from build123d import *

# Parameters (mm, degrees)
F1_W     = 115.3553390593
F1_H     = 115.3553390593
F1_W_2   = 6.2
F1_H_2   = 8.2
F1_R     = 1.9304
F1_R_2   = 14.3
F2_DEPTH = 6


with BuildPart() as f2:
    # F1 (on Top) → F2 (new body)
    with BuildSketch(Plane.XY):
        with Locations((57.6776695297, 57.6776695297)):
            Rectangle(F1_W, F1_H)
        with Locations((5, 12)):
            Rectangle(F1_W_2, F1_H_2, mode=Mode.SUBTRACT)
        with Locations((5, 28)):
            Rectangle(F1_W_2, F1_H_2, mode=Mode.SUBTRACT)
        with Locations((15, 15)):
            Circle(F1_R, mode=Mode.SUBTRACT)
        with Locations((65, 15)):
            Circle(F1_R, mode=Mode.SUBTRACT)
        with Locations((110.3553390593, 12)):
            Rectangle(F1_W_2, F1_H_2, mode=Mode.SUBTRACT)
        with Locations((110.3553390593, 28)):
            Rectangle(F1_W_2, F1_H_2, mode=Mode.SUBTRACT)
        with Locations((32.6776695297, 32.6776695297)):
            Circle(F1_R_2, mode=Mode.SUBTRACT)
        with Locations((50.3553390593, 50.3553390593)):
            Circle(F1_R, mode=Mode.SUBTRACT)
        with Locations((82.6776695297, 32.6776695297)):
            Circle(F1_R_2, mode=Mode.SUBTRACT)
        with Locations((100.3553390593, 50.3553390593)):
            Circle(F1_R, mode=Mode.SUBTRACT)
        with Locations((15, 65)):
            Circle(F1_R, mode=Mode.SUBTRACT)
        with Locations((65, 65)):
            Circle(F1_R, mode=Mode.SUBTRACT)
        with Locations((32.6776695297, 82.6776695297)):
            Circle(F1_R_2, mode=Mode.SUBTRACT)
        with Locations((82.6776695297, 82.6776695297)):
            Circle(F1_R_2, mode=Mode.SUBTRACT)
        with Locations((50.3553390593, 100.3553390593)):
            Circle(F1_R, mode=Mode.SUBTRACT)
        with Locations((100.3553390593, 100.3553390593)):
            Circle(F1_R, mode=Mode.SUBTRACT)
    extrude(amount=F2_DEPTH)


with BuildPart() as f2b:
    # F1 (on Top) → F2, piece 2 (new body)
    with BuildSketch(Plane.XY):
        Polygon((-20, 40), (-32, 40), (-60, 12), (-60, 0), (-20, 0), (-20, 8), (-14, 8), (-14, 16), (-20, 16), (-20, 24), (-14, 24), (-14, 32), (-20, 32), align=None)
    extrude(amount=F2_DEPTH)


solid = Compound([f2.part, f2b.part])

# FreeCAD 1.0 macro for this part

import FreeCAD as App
import Part
import Sketcher
from FreeCAD import Vector

doc = App.newDocument("Part")
body = doc.addObject("PartDesign::Body", "Body")

# Sketch on XY plane
sketch1 = body.newObject("Sketcher::SketchObject", "Sketch")
sketch1.AttachmentSupport = (doc.getObject("XY_Plane"), [""])
sketch1.MapMode = "FlatFace"
sketch1.addGeometry([
    Part.LineSegment(Vector(0, 115.4, 0), Vector(0, 0, 0)),  # 0
    Part.LineSegment(Vector(0, 0, 0), Vector(115.4, 0, 0)),  # 1
    Part.LineSegment(Vector(115.4, 0, 0), Vector(115.4, 115.4, 0)),  # 2
    Part.LineSegment(Vector(115.4, 115.4, 0), Vector(0, 115.4, 0)),  # 3
    Part.LineSegment(Vector(8.1, 7.9, 0), Vector(1.9, 7.9, 0)),  # 4
    Part.LineSegment(Vector(1.9, 7.9, 0), Vector(1.9, 16.1, 0)),  # 5
    Part.LineSegment(Vector(1.9, 16.1, 0), Vector(8.1, 16.1, 0)),  # 6
    Part.LineSegment(Vector(8.1, 16.1, 0), Vector(8.1, 7.9, 0)),  # 7
    Part.Circle(Vector(15, 15, 0), Vector(0, 0, 1), 1.9),  # 8
    Part.LineSegment(Vector(8.1, 23.9, 0), Vector(1.9, 23.9, 0)),  # 9
    Part.LineSegment(Vector(1.9, 23.9, 0), Vector(1.9, 32.1, 0)),  # 10
    Part.LineSegment(Vector(1.9, 32.1, 0), Vector(8.1, 32.1, 0)),  # 11
    Part.LineSegment(Vector(8.1, 32.1, 0), Vector(8.1, 23.9, 0)),  # 12
    Part.Circle(Vector(32.7, 32.7, 0), Vector(0, 0, 1), 14.3),  # 13
    Part.Circle(Vector(50.4, 50.4, 0), Vector(0, 0, 1), 1.9),  # 14
    Part.Circle(Vector(65, 15, 0), Vector(0, 0, 1), 1.9),  # 15
    Part.LineSegment(Vector(113.5, 7.9, 0), Vector(107.3, 7.9, 0)),  # 16
    Part.LineSegment(Vector(107.3, 7.9, 0), Vector(107.3, 16.1, 0)),  # 17
    Part.LineSegment(Vector(107.3, 16.1, 0), Vector(113.5, 16.1, 0)),  # 18
    Part.LineSegment(Vector(113.5, 16.1, 0), Vector(113.5, 7.9, 0)),  # 19
    Part.LineSegment(Vector(113.5, 23.9, 0), Vector(107.3, 23.9, 0)),  # 20
    Part.LineSegment(Vector(107.3, 23.9, 0), Vector(107.3, 32.1, 0)),  # 21
    Part.LineSegment(Vector(107.3, 32.1, 0), Vector(113.5, 32.1, 0)),  # 22
    Part.LineSegment(Vector(113.5, 32.1, 0), Vector(113.5, 23.9, 0)),  # 23
    Part.Circle(Vector(82.7, 32.7, 0), Vector(0, 0, 1), 14.3),  # 24
    Part.Circle(Vector(100.4, 50.4, 0), Vector(0, 0, 1), 1.9),  # 25
    Part.Circle(Vector(15, 65, 0), Vector(0, 0, 1), 1.9),  # 26
    Part.Circle(Vector(32.7, 82.7, 0), Vector(0, 0, 1), 14.3),  # 27
    Part.Circle(Vector(50.4, 100.4, 0), Vector(0, 0, 1), 1.9),  # 28
    Part.Circle(Vector(65, 65, 0), Vector(0, 0, 1), 1.9),  # 29
    Part.Circle(Vector(82.7, 82.7, 0), Vector(0, 0, 1), 14.3),  # 30
    Part.Circle(Vector(100.4, 100.4, 0), Vector(0, 0, 1), 1.9),  # 31
], False)
sketch1.addConstraint([
    Sketcher.Constraint("Coincident", 0, 2, 1, 1),
    Sketcher.Constraint("Coincident", 1, 2, 2, 1),
    Sketcher.Constraint("Coincident", 2, 2, 3, 1),
    Sketcher.Constraint("Coincident", 3, 2, 0, 1),
    Sketcher.Constraint("Coincident", 4, 2, 5, 1),
    Sketcher.Constraint("Coincident", 5, 2, 6, 1),
    Sketcher.Constraint("Coincident", 6, 2, 7, 1),
    Sketcher.Constraint("Coincident", 7, 2, 4, 1),
    Sketcher.Constraint("Coincident", 9, 2, 10, 1),
    Sketcher.Constraint("Coincident", 10, 2, 11, 1),
    Sketcher.Constraint("Coincident", 11, 2, 12, 1),
    Sketcher.Constraint("Coincident", 12, 2, 9, 1),
    Sketcher.Constraint("Coincident", 16, 2, 17, 1),
    Sketcher.Constraint("Coincident", 17, 2, 18, 1),
    Sketcher.Constraint("Coincident", 18, 2, 19, 1),
    Sketcher.Constraint("Coincident", 19, 2, 16, 1),
    Sketcher.Constraint("Coincident", 20, 2, 21, 1),
    Sketcher.Constraint("Coincident", 21, 2, 22, 1),
    Sketcher.Constraint("Coincident", 22, 2, 23, 1),
    Sketcher.Constraint("Coincident", 23, 2, 20, 1),
    Sketcher.Constraint("Vertical", 0),
    Sketcher.Constraint("Horizontal", 1),
    Sketcher.Constraint("Vertical", 2),
    Sketcher.Constraint("Horizontal", 3),
    Sketcher.Constraint("Horizontal", 4),
    Sketcher.Constraint("Vertical", 5),
    Sketcher.Constraint("Horizontal", 6),
    Sketcher.Constraint("Vertical", 7),
    Sketcher.Constraint("Horizontal", 9),
    Sketcher.Constraint("Vertical", 10),
    Sketcher.Constraint("Horizontal", 11),
    Sketcher.Constraint("Vertical", 12),
    Sketcher.Constraint("Horizontal", 16),
    Sketcher.Constraint("Vertical", 17),
    Sketcher.Constraint("Horizontal", 18),
    Sketcher.Constraint("Vertical", 19),
    Sketcher.Constraint("Horizontal", 20),
    Sketcher.Constraint("Vertical", 21),
    Sketcher.Constraint("Horizontal", 22),
    Sketcher.Constraint("Vertical", 23),
    Sketcher.Constraint("Coincident", 0, 2, -1, 1),
    Sketcher.Constraint("Equal", 8, 14),
    Sketcher.Constraint("Equal", 14, 15),
    Sketcher.Constraint("Equal", 13, 24),
    Sketcher.Constraint("Equal", 15, 25),
    Sketcher.Constraint("Equal", 25, 26),
    Sketcher.Constraint("Equal", 24, 27),
    Sketcher.Constraint("Equal", 26, 28),
    Sketcher.Constraint("Equal", 28, 29),
    Sketcher.Constraint("Equal", 27, 30),
    Sketcher.Constraint("Equal", 29, 31),
    Sketcher.Constraint("Horizontal", 8, 3, 15, 3),
    Sketcher.Constraint("Horizontal", 13, 3, 24, 3),
    Sketcher.Constraint("Horizontal", 14, 3, 25, 3),
    Sketcher.Constraint("Horizontal", 26, 3, 29, 3),
    Sketcher.Constraint("Horizontal", 27, 3, 30, 3),
    Sketcher.Constraint("Horizontal", 28, 3, 31, 3),
    Sketcher.Constraint("Horizontal", 7, 2, 16, 2),
    Sketcher.Constraint("Horizontal", 6, 2, 17, 2),
    Sketcher.Constraint("Horizontal", 12, 2, 20, 2),
    Sketcher.Constraint("Horizontal", 11, 2, 21, 2),
    Sketcher.Constraint("Vertical", 8, 3, 26, 3),
    Sketcher.Constraint("Vertical", 13, 3, 27, 3),
    Sketcher.Constraint("Vertical", 14, 3, 28, 3),
    Sketcher.Constraint("Vertical", 15, 3, 29, 3),
    Sketcher.Constraint("Vertical", 24, 3, 30, 3),
    Sketcher.Constraint("Vertical", 25, 3, 31, 3),
    Sketcher.Constraint("Vertical", 5, 2, 9, 2),
    Sketcher.Constraint("Vertical", 7, 2, 11, 2),
    Sketcher.Constraint("Vertical", 17, 2, 20, 2),
    Sketcher.Constraint("Vertical", 19, 2, 22, 2),
    Sketcher.Constraint("Equal", 11, 16),
    Sketcher.Constraint("Equal", 3, 0),
    Sketcher.Constraint("Equal", 7, 10),
    Sketcher.Constraint("Diameter", 13, 28.6),
    Sketcher.Constraint("DistanceX", 4, 2, 4, 1, 6.2),
    Sketcher.Constraint("DistanceY", 5, 1, 5, 2, 8.2),
    Sketcher.Constraint("DistanceX", -1, 1, 8, 3, 15.0),
    Sketcher.Constraint("DistanceY", -1, 1, 8, 3, 15.0),
    Sketcher.Constraint("DistanceX", -1, 1, 15, 3, 65.0),
    Sketcher.Constraint("DistanceY", -1, 1, 26, 3, 65.0),
    Sketcher.Constraint("DistanceX", 13, 3, 24, 3, 50.0),
    Sketcher.Constraint("DistanceX", 14, 3, 25, 3, 50.0),
    Sketcher.Constraint("DistanceY", 13, 3, 27, 3, 50.0),
    Sketcher.Constraint("DistanceY", 14, 3, 28, 3, 50.0),
    Sketcher.Constraint("DistanceX", 25, 3, 1, 2, 15.0),
    Sketcher.Constraint("DistanceY", 31, 3, 2, 2, 15.0),
    Sketcher.Constraint("DistanceY", 4, 2, 9, 2, 16.0),
    Sketcher.Constraint("Diameter", 8, 3.8608),
    Sketcher.Constraint("DistanceX", -1, 1, 4, 2, 1.9),
    Sketcher.Constraint("DistanceY", -1, 1, 4, 2, 7.9),
    Sketcher.Constraint("DistanceX", 16, 2, 1, 2, 8.1),
    Sketcher.Constraint("DistanceX", 1, 1, 1, 2, 115.355339),
    Sketcher.Constraint("DistanceX", -1, 1, 13, 3, 32.67767),
    Sketcher.Constraint("DistanceY", -1, 1, 13, 3, 32.67767),
])
pad1 = body.newObject("PartDesign::Pad", "Pad")
pad1.Profile = sketch1
pad1.Length = 6
body2 = doc.addObject("PartDesign::Body", "Body001")

# Sketch on XY plane
sketch2 = body2.newObject("Sketcher::SketchObject", "Sketch001")
sketch2.AttachmentSupport = (doc.getObject("XY_Plane001"), [""])
sketch2.MapMode = "FlatFace"
sketch2.addGeometry([
    Part.LineSegment(Vector(-20, 40, 0), Vector(-32, 40, 0)),  # 0
    Part.LineSegment(Vector(-32, 40, 0), Vector(-60, 12, 0)),  # 1
    Part.LineSegment(Vector(-60, 12, 0), Vector(-60, 0, 0)),  # 2
    Part.LineSegment(Vector(-60, 0, 0), Vector(-20, 0, 0)),  # 3
    Part.LineSegment(Vector(-20, 0, 0), Vector(-20, 8, 0)),  # 4
    Part.LineSegment(Vector(-20, 8, 0), Vector(-14, 8, 0)),  # 5
    Part.LineSegment(Vector(-14, 8, 0), Vector(-14, 16, 0)),  # 6
    Part.LineSegment(Vector(-14, 16, 0), Vector(-20, 16, 0)),  # 7
    Part.LineSegment(Vector(-20, 16, 0), Vector(-20, 24, 0)),  # 8
    Part.LineSegment(Vector(-20, 24, 0), Vector(-14, 24, 0)),  # 9
    Part.LineSegment(Vector(-14, 24, 0), Vector(-14, 32, 0)),  # 10
    Part.LineSegment(Vector(-14, 32, 0), Vector(-20, 32, 0)),  # 11
    Part.LineSegment(Vector(-20, 32, 0), Vector(-20, 40, 0)),  # 12
], False)
sketch2.addConstraint([
    Sketcher.Constraint("Coincident", 0, 2, 1, 1),
    Sketcher.Constraint("Coincident", 1, 2, 2, 1),
    Sketcher.Constraint("Coincident", 2, 2, 3, 1),
    Sketcher.Constraint("Coincident", 3, 2, 4, 1),
    Sketcher.Constraint("Coincident", 4, 2, 5, 1),
    Sketcher.Constraint("Coincident", 5, 2, 6, 1),
    Sketcher.Constraint("Coincident", 6, 2, 7, 1),
    Sketcher.Constraint("Coincident", 7, 2, 8, 1),
    Sketcher.Constraint("Coincident", 8, 2, 9, 1),
    Sketcher.Constraint("Coincident", 9, 2, 10, 1),
    Sketcher.Constraint("Coincident", 10, 2, 11, 1),
    Sketcher.Constraint("Coincident", 11, 2, 12, 1),
    Sketcher.Constraint("Coincident", 12, 2, 0, 1),
    Sketcher.Constraint("Horizontal", 0),
    Sketcher.Constraint("Vertical", 2),
    Sketcher.Constraint("Horizontal", 3),
    Sketcher.Constraint("Vertical", 4),
    Sketcher.Constraint("Horizontal", 5),
    Sketcher.Constraint("Vertical", 6),
    Sketcher.Constraint("Horizontal", 7),
    Sketcher.Constraint("Vertical", 8),
    Sketcher.Constraint("Horizontal", 9),
    Sketcher.Constraint("Vertical", 10),
    Sketcher.Constraint("Horizontal", 11),
    Sketcher.Constraint("Vertical", 12),
    Sketcher.Constraint("PointOnObject", 2, 2, -1),
    Sketcher.Constraint("Vertical", 4, 2, 7, 2),
    Sketcher.Constraint("Vertical", 6, 2, 9, 2),
    Sketcher.Constraint("Vertical", 8, 2, 11, 2),
    Sketcher.Constraint("Equal", 0, 2),
    Sketcher.Constraint("Equal", 4, 6),
    Sketcher.Constraint("Equal", 6, 8),
    Sketcher.Constraint("Equal", 8, 10),
    Sketcher.Constraint("Equal", 10, 12),
    Sketcher.Constraint("DistanceX", 0, 2, 0, 1, 12.0),
    Sketcher.Constraint("DistanceX", 3, 1, 3, 2, 40.0),
    Sketcher.Constraint("DistanceX", 5, 1, 5, 2, 6.0),
    Sketcher.Constraint("DistanceY", 4, 1, 4, 2, 8.0),
    Sketcher.Constraint("DistanceX", 0, 2, -1, 1, 32.0),
])
pad2 = body2.newObject("PartDesign::Pad", "Pad001")
pad2.Profile = sketch2
pad2.Length = 6

doc.recompute()
